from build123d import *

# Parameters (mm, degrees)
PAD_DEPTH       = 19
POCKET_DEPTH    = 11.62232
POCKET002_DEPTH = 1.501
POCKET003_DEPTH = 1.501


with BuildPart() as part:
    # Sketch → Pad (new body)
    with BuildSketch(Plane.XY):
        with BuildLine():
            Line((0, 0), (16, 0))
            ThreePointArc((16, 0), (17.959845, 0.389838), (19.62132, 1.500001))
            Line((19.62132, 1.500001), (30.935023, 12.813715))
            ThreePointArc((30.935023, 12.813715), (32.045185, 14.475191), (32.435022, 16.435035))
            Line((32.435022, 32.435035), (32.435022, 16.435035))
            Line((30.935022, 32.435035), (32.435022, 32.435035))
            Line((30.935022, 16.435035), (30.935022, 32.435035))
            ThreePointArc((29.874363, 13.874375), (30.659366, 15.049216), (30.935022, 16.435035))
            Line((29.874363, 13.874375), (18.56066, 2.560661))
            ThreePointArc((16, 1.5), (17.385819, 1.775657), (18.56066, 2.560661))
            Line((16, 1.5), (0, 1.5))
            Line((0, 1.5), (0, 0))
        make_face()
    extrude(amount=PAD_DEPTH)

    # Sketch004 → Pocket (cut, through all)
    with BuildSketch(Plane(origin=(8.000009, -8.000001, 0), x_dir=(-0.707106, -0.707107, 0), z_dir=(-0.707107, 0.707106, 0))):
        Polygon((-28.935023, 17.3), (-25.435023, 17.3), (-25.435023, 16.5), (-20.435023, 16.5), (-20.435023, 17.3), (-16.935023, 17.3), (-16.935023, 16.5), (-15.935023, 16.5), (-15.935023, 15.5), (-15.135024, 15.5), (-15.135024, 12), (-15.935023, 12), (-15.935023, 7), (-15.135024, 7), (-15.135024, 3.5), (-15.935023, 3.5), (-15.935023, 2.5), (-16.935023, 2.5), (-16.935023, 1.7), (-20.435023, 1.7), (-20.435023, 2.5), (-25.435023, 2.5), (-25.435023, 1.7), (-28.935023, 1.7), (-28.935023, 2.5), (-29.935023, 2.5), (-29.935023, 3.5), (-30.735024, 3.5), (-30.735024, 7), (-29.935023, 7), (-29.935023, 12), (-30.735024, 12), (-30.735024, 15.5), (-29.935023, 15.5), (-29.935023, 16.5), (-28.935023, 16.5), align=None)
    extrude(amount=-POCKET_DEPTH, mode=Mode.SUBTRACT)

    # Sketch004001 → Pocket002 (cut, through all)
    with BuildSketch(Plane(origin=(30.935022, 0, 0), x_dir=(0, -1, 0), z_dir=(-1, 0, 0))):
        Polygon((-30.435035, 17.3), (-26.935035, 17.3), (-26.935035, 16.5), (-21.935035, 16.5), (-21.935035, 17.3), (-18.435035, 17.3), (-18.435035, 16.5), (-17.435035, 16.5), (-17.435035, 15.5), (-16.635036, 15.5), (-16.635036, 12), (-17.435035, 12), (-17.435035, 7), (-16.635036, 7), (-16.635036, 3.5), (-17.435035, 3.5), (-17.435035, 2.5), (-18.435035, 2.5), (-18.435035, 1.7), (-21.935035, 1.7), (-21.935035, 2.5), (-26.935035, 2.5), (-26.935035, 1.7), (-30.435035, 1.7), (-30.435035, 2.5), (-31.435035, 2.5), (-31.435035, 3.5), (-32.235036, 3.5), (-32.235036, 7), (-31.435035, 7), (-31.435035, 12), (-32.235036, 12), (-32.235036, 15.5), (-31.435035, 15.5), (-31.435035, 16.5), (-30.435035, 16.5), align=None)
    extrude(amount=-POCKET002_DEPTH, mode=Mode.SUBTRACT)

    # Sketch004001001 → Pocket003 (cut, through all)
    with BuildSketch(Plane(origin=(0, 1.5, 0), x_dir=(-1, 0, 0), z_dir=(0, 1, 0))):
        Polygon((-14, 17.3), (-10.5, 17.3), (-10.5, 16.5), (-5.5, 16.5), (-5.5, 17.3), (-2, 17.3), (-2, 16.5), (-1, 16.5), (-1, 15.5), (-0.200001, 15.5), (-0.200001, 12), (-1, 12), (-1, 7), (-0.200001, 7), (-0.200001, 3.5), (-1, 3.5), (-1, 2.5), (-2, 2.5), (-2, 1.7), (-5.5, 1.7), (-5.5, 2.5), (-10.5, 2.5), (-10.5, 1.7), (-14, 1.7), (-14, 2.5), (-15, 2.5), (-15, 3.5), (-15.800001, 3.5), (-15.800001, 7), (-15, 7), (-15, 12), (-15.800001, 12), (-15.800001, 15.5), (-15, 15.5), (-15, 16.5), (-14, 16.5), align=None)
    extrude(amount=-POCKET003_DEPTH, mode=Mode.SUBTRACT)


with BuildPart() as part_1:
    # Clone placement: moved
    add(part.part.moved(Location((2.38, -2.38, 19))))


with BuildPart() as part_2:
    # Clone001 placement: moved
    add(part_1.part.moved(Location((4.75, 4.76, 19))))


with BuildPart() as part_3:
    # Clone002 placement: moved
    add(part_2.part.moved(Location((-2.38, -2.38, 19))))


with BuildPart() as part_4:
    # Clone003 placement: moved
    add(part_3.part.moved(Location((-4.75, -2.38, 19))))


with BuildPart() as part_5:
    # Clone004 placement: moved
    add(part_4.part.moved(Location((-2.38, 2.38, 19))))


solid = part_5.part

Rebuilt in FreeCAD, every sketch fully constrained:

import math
import FreeCAD as App
import Part
import Sketcher
from FreeCAD import Vector
Q = App.Units.Quantity

doc = App.newDocument("Part")
body = doc.addObject("PartDesign::Body", "Body")

# Sketch on XY plane
sketch1 = body.newObject("Sketcher::SketchObject", "Sketch")
sketch1.AttachmentSupport = (doc.getObject("XY_Plane"), [""])
sketch1.MapMode = "FlatFace"
sketch1.addGeometry(Part.LineSegment(Vector(0, 0, 0), Vector(16, 0, 0)), False)
sketch1.addGeometry(Part.ArcOfCircle(Part.Circle(Vector(16, 5.1, 0), Vector(0, 0, 1), 5.1), math.radians(-90), math.radians(-45)), False)
sketch1.addGeometry(Part.LineSegment(Vector(19.6, 1.5, 0), Vector(30.9, 12.8, 0)), False)
sketch1.addGeometry(Part.ArcOfCircle(Part.Circle(Vector(27.3, 16.4, 0), Vector(0, 0, 1), 5.1), math.radians(-45), math.radians(0)), False)
sketch1.addGeometry(Part.LineSegment(Vector(32.4, 16.4, 0), Vector(32.4, 32.4, 0)), False)
sketch1.addGeometry(Part.LineSegment(Vector(32.4, 32.4, 0), Vector(30.9, 32.4, 0)), False)
sketch1.addGeometry(Part.LineSegment(Vector(30.9, 32.4, 0), Vector(30.9, 16.4, 0)), False)
sketch1.addGeometry(Part.ArcOfCircle(Part.Circle(Vector(27.3, 16.4, 0), Vector(0, 0, 1), 3.6), math.radians(-45), math.radians(0)), False)
sketch1.addGeometry(Part.LineSegment(Vector(29.9, 13.9, 0), Vector(18.6, 2.6, 0)), False)
sketch1.addGeometry(Part.ArcOfCircle(Part.Circle(Vector(16, 5.1, 0), Vector(0, 0, 1), 3.6), math.radians(-90), math.radians(-45)), False)
sketch1.addGeometry(Part.LineSegment(Vector(16, 1.5, 0), Vector(0, 1.5, 0)), False)
sketch1.addGeometry(Part.LineSegment(Vector(0, 1.5, 0), Vector(0, 0, 0)), False)
sketch1.addConstraint(Sketcher.Constraint("Tangent", 0, 2, 1, 1))
sketch1.addConstraint(Sketcher.Constraint("Tangent", 1, 2, 2, 1))
sketch1.addConstraint(Sketcher.Constraint("Tangent", 2, 2, 3, 1))
sketch1.addConstraint(Sketcher.Constraint("Tangent", 3, 2, 4, 1))
sketch1.addConstraint(Sketcher.Constraint("Coincident", 4, 2, 5, 1))
sketch1.addConstraint(Sketcher.Constraint("Coincident", 5, 2, 6, 1))
sketch1.addConstraint(Sketcher.Constraint("Tangent", 6, 2, 7, 2))
sketch1.addConstraint(Sketcher.Constraint("Tangent", 7, 1, 8, 1))
sketch1.addConstraint(Sketcher.Constraint("Tangent", 8, 2, 9, 2))
sketch1.addConstraint(Sketcher.Constraint("Tangent", 9, 1, 10, 1))
sketch1.addConstraint(Sketcher.Constraint("Coincident", 10, 2, 11, 1))
sketch1.addConstraint(Sketcher.Constraint("Coincident", 11, 2, 0, 1))
sketch1.addConstraint(Sketcher.Constraint("Horizontal", 0))
sketch1.addConstraint(Sketcher.Constraint("Vertical", 4))
sketch1.addConstraint(Sketcher.Constraint("Horizontal", 5))
sketch1.addConstraint(Sketcher.Constraint("Vertical", 6))
sketch1.addConstraint(Sketcher.Constraint("Horizontal", 10))
sketch1.addConstraint(Sketcher.Constraint("Vertical", 11))
sketch1.addConstraint(Sketcher.Constraint("Coincident", 11, 2, -1, 1))
sketch1.addConstraint(Sketcher.Constraint("Coincident", 7, 3, 3, 3))
sketch1.addConstraint(Sketcher.Constraint("Coincident", 9, 3, 1, 3))
sketch1.addConstraint(Sketcher.Constraint("Equal", 7, 9))
sketch1.addConstraint(Sketcher.Constraint("Parallel", 2, 8))
sketch1.addConstraint(Sketcher.Constraint("Horizontal", 1, 2, 9, 1))
sketch1.addConstraint(Sketcher.Constraint("Vertical", 2, 2, 5, 2))
sketch1.addConstraint(Sketcher.Constraint("Equal", 10, 4))
sketch1.addConstraint(Sketcher.Constraint("DistanceX", 0, 1, 0, 2, Q("16 mm")))
sketch1.addConstraint(Sketcher.Constraint("Distance", 2, Q("16 mm")))
sketch1.addConstraint(Sketcher.Constraint("DistanceX", 5, 2, 5, 1, Q("1.5 mm")))
pad1 = body.newObject("PartDesign::Pad", "Pad")
pad1.Profile = sketch1
pad1.Length = 19

# Sketch on an angled plane
sketch2 = body.newObject("Sketcher::SketchObject", "Sketch001")
sketch2.Placement = App.Placement(Vector(8.000009, -8.000001, 0), App.Rotation(Vector(-0.707106281, -0.707107281, 0), Vector(0, 0, 0.999999999), Vector(-0.707107281, 0.707106281, 0), "ZXY"))
sketch2.addGeometry(Part.LineSegment(Vector(-25.4, 17.3, 0), Vector(-28.9, 17.3, 0)), False)
sketch2.addGeometry(Part.LineSegment(Vector(-28.9, 17.3, 0), Vector(-28.9, 16.5, 0)), False)
sketch2.addGeometry(Part.LineSegment(Vector(-28.9, 16.5, 0), Vector(-29.9, 16.5, 0)), False)
sketch2.addGeometry(Part.LineSegment(Vector(-29.9, 16.5, 0), Vector(-29.9, 15.5, 0)), False)
sketch2.addGeometry(Part.LineSegment(Vector(-29.9, 15.5, 0), Vector(-30.7, 15.5, 0)), False)
sketch2.addGeometry(Part.LineSegment(Vector(-30.7, 15.5, 0), Vector(-30.7, 12, 0)), False)
sketch2.addGeometry(Part.LineSegment(Vector(-30.7, 12, 0), Vector(-29.9, 12, 0)), False)
sketch2.addGeometry(Part.LineSegment(Vector(-29.9, 12, 0), Vector(-29.9, 7, 0)), False)
sketch2.addGeometry(Part.LineSegment(Vector(-29.9, 7, 0), Vector(-30.7, 7, 0)), False)
sketch2.addGeometry(Part.LineSegment(Vector(-30.7, 7, 0), Vector(-30.7, 3.5, 0)), False)
sketch2.addGeometry(Part.LineSegment(Vector(-30.7, 3.5, 0), Vector(-29.9, 3.5, 0)), False)
sketch2.addGeometry(Part.LineSegment(Vector(-29.9, 3.5, 0), Vector(-29.9, 2.5, 0)), False)
sketch2.addGeometry(Part.LineSegment(Vector(-29.9, 2.5, 0), Vector(-28.9, 2.5, 0)), False)
sketch2.addGeometry(Part.LineSegment(Vector(-28.9, 2.5, 0), Vector(-28.9, 1.7, 0)), False)
sketch2.addGeometry(Part.LineSegment(Vector(-28.9, 1.7, 0), Vector(-25.4, 1.7, 0)), False)
sketch2.addGeometry(Part.LineSegment(Vector(-25.4, 1.7, 0), Vector(-25.4, 2.5, 0)), False)
sketch2.addGeometry(Part.LineSegment(Vector(-25.4, 2.5, 0), Vector(-20.4, 2.5, 0)), False)
sketch2.addGeometry(Part.LineSegment(Vector(-20.4, 2.5, 0), Vector(-20.4, 1.7, 0)), False)
sketch2.addGeometry(Part.LineSegment(Vector(-20.4, 1.7, 0), Vector(-16.9, 1.7, 0)), False)
sketch2.addGeometry(Part.LineSegment(Vector(-16.9, 1.7, 0), Vector(-16.9, 2.5, 0)), False)
sketch2.addGeometry(Part.LineSegment(Vector(-16.9, 2.5, 0), Vector(-15.9, 2.5, 0)), False)
sketch2.addGeometry(Part.LineSegment(Vector(-15.9, 2.5, 0), Vector(-15.9, 3.5, 0)), False)
sketch2.addGeometry(Part.LineSegment(Vector(-15.9, 3.5, 0), Vector(-15.1, 3.5, 0)), False)
sketch2.addGeometry(Part.LineSegment(Vector(-15.1, 3.5, 0), Vector(-15.1, 7, 0)), False)
sketch2.addGeometry(Part.LineSegment(Vector(-15.1, 7, 0), Vector(-15.9, 7, 0)), False)
sketch2.addGeometry(Part.LineSegment(Vector(-15.9, 7, 0), Vector(-15.9, 12, 0)), False)
sketch2.addGeometry(Part.LineSegment(Vector(-15.9, 12, 0), Vector(-15.1, 12, 0)), False)
sketch2.addGeometry(Part.LineSegment(Vector(-15.1, 12, 0), Vector(-15.1, 15.5, 0)), False)
sketch2.addGeometry(Part.LineSegment(Vector(-15.1, 15.5, 0), Vector(-15.9, 15.5, 0)), False)
sketch2.addGeometry(Part.LineSegment(Vector(-15.9, 15.5, 0), Vector(-15.9, 16.5, 0)), False)
sketch2.addGeometry(Part.LineSegment(Vector(-15.9, 16.5, 0), Vector(-16.9, 16.5, 0)), False)
sketch2.addGeometry(Part.LineSegment(Vector(-16.9, 16.5, 0), Vector(-16.9, 17.3, 0)), False)
sketch2.addGeometry(Part.LineSegment(Vector(-16.9, 17.3, 0), Vector(-20.4, 17.3, 0)), False)
sketch2.addGeometry(Part.LineSegment(Vector(-20.4, 17.3, 0), Vector(-20.4, 16.5, 0)), False)
sketch2.addGeometry(Part.LineSegment(Vector(-20.4, 16.5, 0), Vector(-25.4, 16.5, 0)), False)
sketch2.addGeometry(Part.LineSegment(Vector(-25.4, 16.5, 0), Vector(-25.4, 17.3, 0)), False)
sketch2.addConstraint(Sketcher.Constraint("Coincident", 0, 2, 1, 1))
sketch2.addConstraint(Sketcher.Constraint("Coincident", 1, 2, 2, 1))
sketch2.addConstraint(Sketcher.Constraint("Coincident", 2, 2, 3, 1))
sketch2.addConstraint(Sketcher.Constraint("Coincident", 3, 2, 4, 1))
sketch2.addConstraint(Sketcher.Constraint("Coincident", 4, 2, 5, 1))
sketch2.addConstraint(Sketcher.Constraint("Coincident", 5, 2, 6, 1))
sketch2.addConstraint(Sketcher.Constraint("Coincident", 6, 2, 7, 1))
sketch2.addConstraint(Sketcher.Constraint("Coincident", 7, 2, 8, 1))
sketch2.addConstraint(Sketcher.Constraint("Coincident", 8, 2, 9, 1))
sketch2.addConstraint(Sketcher.Constraint("Coincident", 9, 2, 10, 1))
sketch2.addConstraint(Sketcher.Constraint("Coincident", 10, 2, 11, 1))
sketch2.addConstraint(Sketcher.Constraint("Coincident", 11, 2, 12, 1))
sketch2.addConstraint(Sketcher.Constraint("Coincident", 12, 2, 13, 1))
sketch2.addConstraint(Sketcher.Constraint("Coincident", 13, 2, 14, 1))
sketch2.addConstraint(Sketcher.Constraint("Coincident", 14, 2, 15, 1))
sketch2.addConstraint(Sketcher.Constraint("Coincident", 15, 2, 16, 1))
sketch2.addConstraint(Sketcher.Constraint("Coincident", 16, 2, 17, 1))
sketch2.addConstraint(Sketcher.Constraint("Coincident", 17, 2, 18, 1))
sketch2.addConstraint(Sketcher.Constraint("Coincident", 18, 2, 19, 1))
sketch2.addConstraint(Sketcher.Constraint("Coincident", 19, 2, 20, 1))
sketch2.addConstraint(Sketcher.Constraint("Coincident", 20, 2, 21, 1))
sketch2.addConstraint(Sketcher.Constraint("Coincident", 21, 2, 22, 1))
sketch2.addConstraint(Sketcher.Constraint("Coincident", 22, 2, 23, 1))
sketch2.addConstraint(Sketcher.Constraint("Coincident", 23, 2, 24, 1))
sketch2.addConstraint(Sketcher.Constraint("Coincident", 24, 2, 25, 1))
sketch2.addConstraint(Sketcher.Constraint("Coincident", 25, 2, 26, 1))
sketch2.addConstraint(Sketcher.Constraint("Coincident", 26, 2, 27, 1))
sketch2.addConstraint(Sketcher.Constraint("Coincident", 27, 2, 28, 1))
sketch2.addConstraint(Sketcher.Constraint("Coincident", 28, 2, 29, 1))
sketch2.addConstraint(Sketcher.Constraint("Coincident", 29, 2, 30, 1))
sketch2.addConstraint(Sketcher.Constraint("Coincident", 30, 2, 31, 1))
sketch2.addConstraint(Sketcher.Constraint("Coincident", 31, 2, 32, 1))
sketch2.addConstraint(Sketcher.Constraint("Coincident", 32, 2, 33, 1))
sketch2.addConstraint(Sketcher.Constraint("Coincident", 33, 2, 34, 1))
sketch2.addConstraint(Sketcher.Constraint("Coincident", 34, 2, 35, 1))
sketch2.addConstraint(Sketcher.Constraint("Coincident", 35, 2, 0, 1))
sketch2.addConstraint(Sketcher.Constraint("Horizontal", 0))
sketch2.addConstraint(Sketcher.Constraint("Vertical", 1))
sketch2.addConstraint(Sketcher.Constraint("Horizontal", 2))
sketch2.addConstraint(Sketcher.Constraint("Vertical", 3))
sketch2.addConstraint(Sketcher.Constraint("Horizontal", 4))
sketch2.addConstraint(Sketcher.Constraint("Vertical", 5))
sketch2.addConstraint(Sketcher.Constraint("Horizontal", 6))
sketch2.addConstraint(Sketcher.Constraint("Vertical", 7))
sketch2.addConstraint(Sketcher.Constraint("Horizontal", 8))
sketch2.addConstraint(Sketcher.Constraint("Vertical", 9))
sketch2.addConstraint(Sketcher.Constraint("Horizontal", 10))
sketch2.addConstraint(Sketcher.Constraint("Vertical", 11))
sketch2.addConstraint(Sketcher.Constraint("Horizontal", 12))
sketch2.addConstraint(Sketcher.Constraint("Vertical", 13))
sketch2.addConstraint(Sketcher.Constraint("Horizontal", 14))
sketch2.addConstraint(Sketcher.Constraint("Vertical", 15))
sketch2.addConstraint(Sketcher.Constraint("Horizontal", 16))
sketch2.addConstraint(Sketcher.Constraint("Vertical", 17))
sketch2.addConstraint(Sketcher.Constraint("Horizontal", 18))
sketch2.addConstraint(Sketcher.Constraint("Vertical", 19))
sketch2.addConstraint(Sketcher.Constraint("Horizontal", 20))
sketch2.addConstraint(Sketcher.Constraint("Vertical", 21))
sketch2.addConstraint(Sketcher.Constraint("Horizontal", 22))
sketch2.addConstraint(Sketcher.Constraint("Vertical", 23))
sketch2.addConstraint(Sketcher.Constraint("Horizontal", 24))
sketch2.addConstraint(Sketcher.Constraint("Vertical", 25))
sketch2.addConstraint(Sketcher.Constraint("Horizontal", 26))
sketch2.addConstraint(Sketcher.Constraint("Vertical", 27))
sketch2.addConstraint(Sketcher.Constraint("Horizontal", 28))
sketch2.addConstraint(Sketcher.Constraint("Vertical", 29))
sketch2.addConstraint(Sketcher.Constraint("Horizontal", 30))
sketch2.addConstraint(Sketcher.Constraint("Vertical", 31))
sketch2.addConstraint(Sketcher.Constraint("Horizontal", 32))
sketch2.addConstraint(Sketcher.Constraint("Vertical", 33))
sketch2.addConstraint(Sketcher.Constraint("Horizontal", 34))
sketch2.addConstraint(Sketcher.Constraint("Vertical", 35))
sketch2.addConstraint(Sketcher.Constraint("Horizontal", 12, 2, 15, 2))
sketch2.addConstraint(Sketcher.Constraint("Horizontal", 14, 2, 17, 2))
sketch2.addConstraint(Sketcher.Constraint("Horizontal", 16, 2, 19, 2))
sketch2.addConstraint(Sketcher.Constraint("Horizontal", 10, 2, 21, 2))
sketch2.addConstraint(Sketcher.Constraint("Horizontal", 8, 2, 23, 2))
sketch2.addConstraint(Sketcher.Constraint("Horizontal", 6, 2, 25, 2))
sketch2.addConstraint(Sketcher.Constraint("Horizontal", 4, 2, 27, 2))
sketch2.addConstraint(Sketcher.Constraint("Horizontal", 2, 2, 29, 2))
sketch2.addConstraint(Sketcher.Constraint("Horizontal", 0, 2, 31, 2))
sketch2.addConstraint(Sketcher.Constraint("Horizontal", 30, 2, 33, 2))
sketch2.addConstraint(Sketcher.Constraint("Vertical", 3, 2, 6, 2))
sketch2.addConstraint(Sketcher.Constraint("Vertical", 5, 2, 8, 2))
sketch2.addConstraint(Sketcher.Constraint("Vertical", 7, 2, 10, 2))
sketch2.addConstraint(Sketcher.Constraint("Vertical", 1, 2, 12, 2))
sketch2.addConstraint(Sketcher.Constraint("Vertical", 21, 2, 24, 2))
sketch2.addConstraint(Sketcher.Constraint("Vertical", 23, 2, 26, 2))
sketch2.addConstraint(Sketcher.Constraint("Vertical", 25, 2, 28, 2))
sketch2.addConstraint(Sketcher.Constraint("Vertical", 19, 2, 30, 2))
sketch2.addConstraint(Sketcher.Constraint("Vertical", 17, 2, 32, 2))
sketch2.addConstraint(Sketcher.Constraint("Vertical", 15, 2, 34, 2))
sketch2.addConstraint(Sketcher.Constraint("Equal", 14, 18))
sketch2.addConstraint(Sketcher.Constraint("Equal", 12, 20))
sketch2.addConstraint(Sketcher.Constraint("Equal", 28, 1))
sketch2.addConstraint(Sketcher.Constraint("Equal", 30, 3))
sketch2.addConstraint(Sketcher.Constraint("Equal", 32, 5))
sketch2.addConstraint(Sketcher.Constraint("Equal", 34, 7))
sketch2.addConstraint(Sketcher.Constraint("Equal", 5, 9))
sketch2.addConstraint(Sketcher.Constraint("Equal", 3, 11))
sketch2.addConstraint(Sketcher.Constraint("Equal", 1, 13))
sketch2.addConstraint(Sketcher.Constraint("Equal", 10, 15))
sketch2.addConstraint(Sketcher.Constraint("DistanceX", 2, 2, 2, 1, Q("1 mm")))
sketch2.addConstraint(Sketcher.Constraint("DistanceX", 16, 1, 16, 2, Q("5 mm")))
sketch2.addConstraint(Sketcher.Constraint("DistanceX", 0, 2, 0, 1, Q("3.5 mm")))
sketch2.addConstraint(Sketcher.Constraint("DistanceX", 4, 2, 4, 1, Q("0.800001 mm")))
sketch2.addConstraint(Sketcher.Constraint("DistanceY", -1, 1, 5, 2, Q("12 mm")))
sketch2.addConstraint(Sketcher.Constraint("DistanceX", 0, 2, -1, 1, Q("28.935023 mm")))
pocket1 = body.newObject("PartDesign::Pocket", "Pocket")
pocket1.Profile = sketch2
pocket1.Type = "ThroughAll"

# Sketch on YZ plane
sketch3 = body.newObject("Sketcher::SketchObject", "Sketch002")
sketch3.AttachmentSupport = (doc.getObject("YZ_Plane"), [""])
sketch3.MapMode = "FlatFace"
sketch3.AttachmentOffset = App.Placement(Vector(0, 0, 30.935022), App.Rotation())
sketch3.addGeometry(Part.LineSegment(Vector(26.9, 17.3, 0), Vector(30.4, 17.3, 0)), False)
sketch3.addGeometry(Part.LineSegment(Vector(30.4, 17.3, 0), Vector(30.4, 16.5, 0)), False)
sketch3.addGeometry(Part.LineSegment(Vector(30.4, 16.5, 0), Vector(31.4, 16.5, 0)), False)
sketch3.addGeometry(Part.LineSegment(Vector(31.4, 16.5, 0), Vector(31.4, 15.5, 0)), False)
sketch3.addGeometry(Part.LineSegment(Vector(31.4, 15.5, 0), Vector(32.2, 15.5, 0)), False)
sketch3.addGeometry(Part.LineSegment(Vector(32.2, 15.5, 0), Vector(32.2, 12, 0)), False)
sketch3.addGeometry(Part.LineSegment(Vector(32.2, 12, 0), Vector(31.4, 12, 0)), False)
sketch3.addGeometry(Part.LineSegment(Vector(31.4, 12, 0), Vector(31.4, 7, 0)), False)
sketch3.addGeometry(Part.LineSegment(Vector(31.4, 7, 0), Vector(32.2, 7, 0)), False)
sketch3.addGeometry(Part.LineSegment(Vector(32.2, 7, 0), Vector(32.2, 3.5, 0)), False)
sketch3.addGeometry(Part.LineSegment(Vector(32.2, 3.5, 0), Vector(31.4, 3.5, 0)), False)
sketch3.addGeometry(Part.LineSegment(Vector(31.4, 3.5, 0), Vector(31.4, 2.5, 0)), False)
sketch3.addGeometry(Part.LineSegment(Vector(31.4, 2.5, 0), Vector(30.4, 2.5, 0)), False)
sketch3.addGeometry(Part.LineSegment(Vector(30.4, 2.5, 0), Vector(30.4, 1.7, 0)), False)
sketch3.addGeometry(Part.LineSegment(Vector(30.4, 1.7, 0), Vector(26.9, 1.7, 0)), False)
sketch3.addGeometry(Part.LineSegment(Vector(26.9, 1.7, 0), Vector(26.9, 2.5, 0)), False)
sketch3.addGeometry(Part.LineSegment(Vector(26.9, 2.5, 0), Vector(21.9, 2.5, 0)), False)
sketch3.addGeometry(Part.LineSegment(Vector(21.9, 2.5, 0), Vector(21.9, 1.7, 0)), False)
sketch3.addGeometry(Part.LineSegment(Vector(21.9, 1.7, 0), Vector(18.4, 1.7, 0)), False)
sketch3.addGeometry(Part.LineSegment(Vector(18.4, 1.7, 0), Vector(18.4, 2.5, 0)), False)
sketch3.addGeometry(Part.LineSegment(Vector(18.4, 2.5, 0), Vector(17.4, 2.5, 0)), False)
sketch3.addGeometry(Part.LineSegment(Vector(17.4, 2.5, 0), Vector(17.4, 3.5, 0)), False)
sketch3.addGeometry(Part.LineSegment(Vector(17.4, 3.5, 0), Vector(16.6, 3.5, 0)), False)
sketch3.addGeometry(Part.LineSegment(Vector(16.6, 3.5, 0), Vector(16.6, 7, 0)), False)
sketch3.addGeometry(Part.LineSegment(Vector(16.6, 7, 0), Vector(17.4, 7, 0)), False)
sketch3.addGeometry(Part.LineSegment(Vector(17.4, 7, 0), Vector(17.4, 12, 0)), False)
sketch3.addGeometry(Part.LineSegment(Vector(17.4, 12, 0), Vector(16.6, 12, 0)), False)
sketch3.addGeometry(Part.LineSegment(Vector(16.6, 12, 0), Vector(16.6, 15.5, 0)), False)
sketch3.addGeometry(Part.LineSegment(Vector(16.6, 15.5, 0), Vector(17.4, 15.5, 0)), False)
sketch3.addGeometry(Part.LineSegment(Vector(17.4, 15.5, 0), Vector(17.4, 16.5, 0)), False)
sketch3.addGeometry(Part.LineSegment(Vector(17.4, 16.5, 0), Vector(18.4, 16.5, 0)), False)
sketch3.addGeometry(Part.LineSegment(Vector(18.4, 16.5, 0), Vector(18.4, 17.3, 0)), False)
sketch3.addGeometry(Part.LineSegment(Vector(18.4, 17.3, 0), Vector(21.9, 17.3, 0)), False)
sketch3.addGeometry(Part.LineSegment(Vector(21.9, 17.3, 0), Vector(21.9, 16.5, 0)), False)
sketch3.addGeometry(Part.LineSegment(Vector(21.9, 16.5, 0), Vector(26.9, 16.5, 0)), False)
sketch3.addGeometry(Part.LineSegment(Vector(26.9, 16.5, 0), Vector(26.9, 17.3, 0)), False)
sketch3.addConstraint(Sketcher.Constraint("Coincident", 0, 2, 1, 1))
sketch3.addConstraint(Sketcher.Constraint("Coincident", 1, 2, 2, 1))
sketch3.addConstraint(Sketcher.Constraint("Coincident", 2, 2, 3, 1))
sketch3.addConstraint(Sketcher.Constraint("Coincident", 3, 2, 4, 1))
sketch3.addConstraint(Sketcher.Constraint("Coincident", 4, 2, 5, 1))
sketch3.addConstraint(Sketcher.Constraint("Coincident", 5, 2, 6, 1))
sketch3.addConstraint(Sketcher.Constraint("Coincident", 6, 2, 7, 1))
sketch3.addConstraint(Sketcher.Constraint("Coincident", 7, 2, 8, 1))
sketch3.addConstraint(Sketcher.Constraint("Coincident", 8, 2, 9, 1))
sketch3.addConstraint(Sketcher.Constraint("Coincident", 9, 2, 10, 1))
sketch3.addConstraint(Sketcher.Constraint("Coincident", 10, 2, 11, 1))
sketch3.addConstraint(Sketcher.Constraint("Coincident", 11, 2, 12, 1))
sketch3.addConstraint(Sketcher.Constraint("Coincident", 12, 2, 13, 1))
sketch3.addConstraint(Sketcher.Constraint("Coincident", 13, 2, 14, 1))
sketch3.addConstraint(Sketcher.Constraint("Coincident", 14, 2, 15, 1))
sketch3.addConstraint(Sketcher.Constraint("Coincident", 15, 2, 16, 1))
sketch3.addConstraint(Sketcher.Constraint("Coincident", 16, 2, 17, 1))
sketch3.addConstraint(Sketcher.Constraint("Coincident", 17, 2, 18, 1))
sketch3.addConstraint(Sketcher.Constraint("Coincident", 18, 2, 19, 1))
sketch3.addConstraint(Sketcher.Constraint("Coincident", 19, 2, 20, 1))
sketch3.addConstraint(Sketcher.Constraint("Coincident", 20, 2, 21, 1))
sketch3.addConstraint(Sketcher.Constraint("Coincident", 21, 2, 22, 1))
sketch3.addConstraint(Sketcher.Constraint("Coincident", 22, 2, 23, 1))
sketch3.addConstraint(Sketcher.Constraint("Coincident", 23, 2, 24, 1))
sketch3.addConstraint(Sketcher.Constraint("Coincident", 24, 2, 25, 1))
sketch3.addConstraint(Sketcher.Constraint("Coincident", 25, 2, 26, 1))
sketch3.addConstraint(Sketcher.Constraint("Coincident", 26, 2, 27, 1))
sketch3.addConstraint(Sketcher.Constraint("Coincident", 27, 2, 28, 1))
sketch3.addConstraint(Sketcher.Constraint("Coincident", 28, 2, 29, 1))
sketch3.addConstraint(Sketcher.Constraint("Coincident", 29, 2, 30, 1))
sketch3.addConstraint(Sketcher.Constraint("Coincident", 30, 2, 31, 1))
sketch3.addConstraint(Sketcher.Constraint("Coincident", 31, 2, 32, 1))
sketch3.addConstraint(Sketcher.Constraint("Coincident", 32, 2, 33, 1))
sketch3.addConstraint(Sketcher.Constraint("Coincident", 33, 2, 34, 1))
sketch3.addConstraint(Sketcher.Constraint("Coincident", 34, 2, 35, 1))
sketch3.addConstraint(Sketcher.Constraint("Coincident", 35, 2, 0, 1))
sketch3.addConstraint(Sketcher.Constraint("Horizontal", 0))
sketch3.addConstraint(Sketcher.Constraint("Vertical", 1))
sketch3.addConstraint(Sketcher.Constraint("Horizontal", 2))
sketch3.addConstraint(Sketcher.Constraint("Vertical", 3))
sketch3.addConstraint(Sketcher.Constraint("Horizontal", 4))
sketch3.addConstraint(Sketcher.Constraint("Vertical", 5))
sketch3.addConstraint(Sketcher.Constraint("Horizontal", 6))
sketch3.addConstraint(Sketcher.Constraint("Vertical", 7))
sketch3.addConstraint(Sketcher.Constraint("Horizontal", 8))
sketch3.addConstraint(Sketcher.Constraint("Vertical", 9))
sketch3.addConstraint(Sketcher.Constraint("Horizontal", 10))
sketch3.addConstraint(Sketcher.Constraint("Vertical", 11))
sketch3.addConstraint(Sketcher.Constraint("Horizontal", 12))
sketch3.addConstraint(Sketcher.Constraint("Vertical", 13))
sketch3.addConstraint(Sketcher.Constraint("Horizontal", 14))
sketch3.addConstraint(Sketcher.Constraint("Vertical", 15))
sketch3.addConstraint(Sketcher.Constraint("Horizontal", 16))
sketch3.addConstraint(Sketcher.Constraint("Vertical", 17))
sketch3.addConstraint(Sketcher.Constraint("Horizontal", 18))
sketch3.addConstraint(Sketcher.Constraint("Vertical", 19))
sketch3.addConstraint(Sketcher.Constraint("Horizontal", 20))
sketch3.addConstraint(Sketcher.Constraint("Vertical", 21))
sketch3.addConstraint(Sketcher.Constraint("Horizontal", 22))
sketch3.addConstraint(Sketcher.Constraint("Vertical", 23))
sketch3.addConstraint(Sketcher.Constraint("Horizontal", 24))
sketch3.addConstraint(Sketcher.Constraint("Vertical", 25))
sketch3.addConstraint(Sketcher.Constraint("Horizontal", 26))
sketch3.addConstraint(Sketcher.Constraint("Vertical", 27))
sketch3.addConstraint(Sketcher.Constraint("Horizontal", 28))
sketch3.addConstraint(Sketcher.Constraint("Vertical", 29))
sketch3.addConstraint(Sketcher.Constraint("Horizontal", 30))
sketch3.addConstraint(Sketcher.Constraint("Vertical", 31))
sketch3.addConstraint(Sketcher.Constraint("Horizontal", 32))
sketch3.addConstraint(Sketcher.Constraint("Vertical", 33))
sketch3.addConstraint(Sketcher.Constraint("Horizontal", 34))
sketch3.addConstraint(Sketcher.Constraint("Vertical", 35))
sketch3.addConstraint(Sketcher.Constraint("Horizontal", 12, 2, 15, 2))
sketch3.addConstraint(Sketcher.Constraint("Horizontal", 14, 2, 17, 2))
sketch3.addConstraint(Sketcher.Constraint("Horizontal", 16, 2, 19, 2))
sketch3.addConstraint(Sketcher.Constraint("Horizontal", 10, 2, 21, 2))
sketch3.addConstraint(Sketcher.Constraint("Horizontal", 8, 2, 23, 2))
sketch3.addConstraint(Sketcher.Constraint("Horizontal", 6, 2, 25, 2))
sketch3.addConstraint(Sketcher.Constraint("Horizontal", 4, 2, 27, 2))
sketch3.addConstraint(Sketcher.Constraint("Horizontal", 2, 2, 29, 2))
sketch3.addConstraint(Sketcher.Constraint("Horizontal", 0, 2, 31, 2))
sketch3.addConstraint(Sketcher.Constraint("Horizontal", 30, 2, 33, 2))
sketch3.addConstraint(Sketcher.Constraint("Vertical", 3, 2, 6, 2))
sketch3.addConstraint(Sketcher.Constraint("Vertical", 5, 2, 8, 2))
sketch3.addConstraint(Sketcher.Constraint("Vertical", 7, 2, 10, 2))
sketch3.addConstraint(Sketcher.Constraint("Vertical", 1, 2, 12, 2))
sketch3.addConstraint(Sketcher.Constraint("Vertical", 21, 2, 24, 2))
sketch3.addConstraint(Sketcher.Constraint("Vertical", 23, 2, 26, 2))
sketch3.addConstraint(Sketcher.Constraint("Vertical", 25, 2, 28, 2))
sketch3.addConstraint(Sketcher.Constraint("Vertical", 19, 2, 30, 2))
sketch3.addConstraint(Sketcher.Constraint("Vertical", 17, 2, 32, 2))
sketch3.addConstraint(Sketcher.Constraint("Vertical", 15, 2, 34, 2))
sketch3.addConstraint(Sketcher.Constraint("Equal", 14, 18))
sketch3.addConstraint(Sketcher.Constraint("Equal", 12, 20))
sketch3.addConstraint(Sketcher.Constraint("Equal", 28, 1))
sketch3.addConstraint(Sketcher.Constraint("Equal", 30, 3))
sketch3.addConstraint(Sketcher.Constraint("Equal", 32, 5))
sketch3.addConstraint(Sketcher.Constraint("Equal", 34, 7))
sketch3.addConstraint(Sketcher.Constraint("Equal", 5, 9))
sketch3.addConstraint(Sketcher.Constraint("Equal", 3, 11))
sketch3.addConstraint(Sketcher.Constraint("Equal", 1, 13))
sketch3.addConstraint(Sketcher.Constraint("Equal", 10, 15))
sketch3.addConstraint(Sketcher.Constraint("DistanceX", 2, 1, 2, 2, Q("1 mm")))
sketch3.addConstraint(Sketcher.Constraint("DistanceX", 16, 2, 16, 1, Q("5 mm")))
sketch3.addConstraint(Sketcher.Constraint("DistanceX", 0, 1, 0, 2, Q("3.5 mm")))
sketch3.addConstraint(Sketcher.Constraint("DistanceX", 4, 1, 4, 2, Q("0.800001 mm")))
sketch3.addConstraint(Sketcher.Constraint("DistanceY", -1, 1, 5, 2, Q("12 mm")))
sketch3.addConstraint(Sketcher.Constraint("DistanceX", -1, 1, 0, 2, Q("30.435035 mm")))
pocket2 = body.newObject("PartDesign::Pocket", "Pocket001")
pocket2.Profile = sketch3
pocket2.Type = "ThroughAll"
pocket2.Reversed = True

# Sketch on XZ plane
sketch4 = body.newObject("Sketcher::SketchObject", "Sketch003")
sketch4.AttachmentSupport = (doc.getObject("XZ_Plane"), [""])
sketch4.MapMode = "FlatFace"
sketch4.AttachmentOffset = App.Placement(Vector(0, 0, -1.5), App.Rotation())
sketch4.addGeometry(Part.LineSegment(Vector(10.5, 17.3, 0), Vector(14, 17.3, 0)), False)
sketch4.addGeometry(Part.LineSegment(Vector(14, 17.3, 0), Vector(14, 16.5, 0)), False)
sketch4.addGeometry(Part.LineSegment(Vector(14, 16.5, 0), Vector(15, 16.5, 0)), False)
sketch4.addGeometry(Part.LineSegment(Vector(15, 16.5, 0), Vector(15, 15.5, 0)), False)
sketch4.addGeometry(Part.LineSegment(Vector(15, 15.5, 0), Vector(15.8, 15.5, 0)), False)
sketch4.addGeometry(Part.LineSegment(Vector(15.8, 15.5, 0), Vector(15.8, 12, 0)), False)
sketch4.addGeometry(Part.LineSegment(Vector(15.8, 12, 0), Vector(15, 12, 0)), False)
sketch4.addGeometry(Part.LineSegment(Vector(15, 12, 0), Vector(15, 7, 0)), False)
sketch4.addGeometry(Part.LineSegment(Vector(15, 7, 0), Vector(15.8, 7, 0)), False)
sketch4.addGeometry(Part.LineSegment(Vector(15.8, 7, 0), Vector(15.8, 3.5, 0)), False)
sketch4.addGeometry(Part.LineSegment(Vector(15.8, 3.5, 0), Vector(15, 3.5, 0)), False)
sketch4.addGeometry(Part.LineSegment(Vector(15, 3.5, 0), Vector(15, 2.5, 0)), False)
sketch4.addGeometry(Part.LineSegment(Vector(15, 2.5, 0), Vector(14, 2.5, 0)), False)
sketch4.addGeometry(Part.LineSegment(Vector(14, 2.5, 0), Vector(14, 1.7, 0)), False)
sketch4.addGeometry(Part.LineSegment(Vector(14, 1.7, 0), Vector(10.5, 1.7, 0)), False)
sketch4.addGeometry(Part.LineSegment(Vector(10.5, 1.7, 0), Vector(10.5, 2.5, 0)), False)
sketch4.addGeometry(Part.LineSegment(Vector(10.5, 2.5, 0), Vector(5.5, 2.5, 0)), False)
sketch4.addGeometry(Part.LineSegment(Vector(5.5, 2.5, 0), Vector(5.5, 1.7, 0)), False)
sketch4.addGeometry(Part.LineSegment(Vector(5.5, 1.7, 0), Vector(2, 1.7, 0)), False)
sketch4.addGeometry(Part.LineSegment(Vector(2, 1.7, 0), Vector(2, 2.5, 0)), False)
sketch4.addGeometry(Part.LineSegment(Vector(2, 2.5, 0), Vector(1, 2.5, 0)), False)
sketch4.addGeometry(Part.LineSegment(Vector(1, 2.5, 0), Vector(1, 3.5, 0)), False)
sketch4.addGeometry(Part.LineSegment(Vector(1, 3.5, 0), Vector(0.2, 3.5, 0)), False)
sketch4.addGeometry(Part.LineSegment(Vector(0.2, 3.5, 0), Vector(0.2, 7, 0)), False)
sketch4.addGeometry(Part.LineSegment(Vector(0.2, 7, 0), Vector(1, 7, 0)), False)
sketch4.addGeometry(Part.LineSegment(Vector(1, 7, 0), Vector(1, 12, 0)), False)
sketch4.addGeometry(Part.LineSegment(Vector(1, 12, 0), Vector(0.2, 12, 0)), False)
sketch4.addGeometry(Part.LineSegment(Vector(0.2, 12, 0), Vector(0.2, 15.5, 0)), False)
sketch4.addGeometry(Part.LineSegment(Vector(0.2, 15.5, 0), Vector(1, 15.5, 0)), False)
sketch4.addGeometry(Part.LineSegment(Vector(1, 15.5, 0), Vector(1, 16.5, 0)), False)
sketch4.addGeometry(Part.LineSegment(Vector(1, 16.5, 0), Vector(2, 16.5, 0)), False)
sketch4.addGeometry(Part.LineSegment(Vector(2, 16.5, 0), Vector(2, 17.3, 0)), False)
sketch4.addGeometry(Part.LineSegment(Vector(2, 17.3, 0), Vector(5.5, 17.3, 0)), False)
sketch4.addGeometry(Part.LineSegment(Vector(5.5, 17.3, 0), Vector(5.5, 16.5, 0)), False)
sketch4.addGeometry(Part.LineSegment(Vector(5.5, 16.5, 0), Vector(10.5, 16.5, 0)), False)
sketch4.addGeometry(Part.LineSegment(Vector(10.5, 16.5, 0), Vector(10.5, 17.3, 0)), False)
sketch4.addConstraint(Sketcher.Constraint("Coincident", 0, 2, 1, 1))
sketch4.addConstraint(Sketcher.Constraint("Coincident", 1, 2, 2, 1))
sketch4.addConstraint(Sketcher.Constraint("Coincident", 2, 2, 3, 1))
sketch4.addConstraint(Sketcher.Constraint("Coincident", 3, 2, 4, 1))
sketch4.addConstraint(Sketcher.Constraint("Coincident", 4, 2, 5, 1))
sketch4.addConstraint(Sketcher.Constraint("Coincident", 5, 2, 6, 1))
sketch4.addConstraint(Sketcher.Constraint("Coincident", 6, 2, 7, 1))
sketch4.addConstraint(Sketcher.Constraint("Coincident", 7, 2, 8, 1))
sketch4.addConstraint(Sketcher.Constraint("Coincident", 8, 2, 9, 1))
sketch4.addConstraint(Sketcher.Constraint("Coincident", 9, 2, 10, 1))
sketch4.addConstraint(Sketcher.Constraint("Coincident", 10, 2, 11, 1))
sketch4.addConstraint(Sketcher.Constraint("Coincident", 11, 2, 12, 1))
sketch4.addConstraint(Sketcher.Constraint("Coincident", 12, 2, 13, 1))
sketch4.addConstraint(Sketcher.Constraint("Coincident", 13, 2, 14, 1))
sketch4.addConstraint(Sketcher.Constraint("Coincident", 14, 2, 15, 1))
sketch4.addConstraint(Sketcher.Constraint("Coincident", 15, 2, 16, 1))
sketch4.addConstraint(Sketcher.Constraint("Coincident", 16, 2, 17, 1))
sketch4.addConstraint(Sketcher.Constraint("Coincident", 17, 2, 18, 1))
sketch4.addConstraint(Sketcher.Constraint("Coincident", 18, 2, 19, 1))
sketch4.addConstraint(Sketcher.Constraint("Coincident", 19, 2, 20, 1))
sketch4.addConstraint(Sketcher.Constraint("Coincident", 20, 2, 21, 1))
sketch4.addConstraint(Sketcher.Constraint("Coincident", 21, 2, 22, 1))
sketch4.addConstraint(Sketcher.Constraint("Coincident", 22, 2, 23, 1))
sketch4.addConstraint(Sketcher.Constraint("Coincident", 23, 2, 24, 1))
sketch4.addConstraint(Sketcher.Constraint("Coincident", 24, 2, 25, 1))
sketch4.addConstraint(Sketcher.Constraint("Coincident", 25, 2, 26, 1))
sketch4.addConstraint(Sketcher.Constraint("Coincident", 26, 2, 27, 1))
sketch4.addConstraint(Sketcher.Constraint("Coincident", 27, 2, 28, 1))
sketch4.addConstraint(Sketcher.Constraint("Coincident", 28, 2, 29, 1))
sketch4.addConstraint(Sketcher.Constraint("Coincident", 29, 2, 30, 1))
sketch4.addConstraint(Sketcher.Constraint("Coincident", 30, 2, 31, 1))
sketch4.addConstraint(Sketcher.Constraint("Coincident", 31, 2, 32, 1))
sketch4.addConstraint(Sketcher.Constraint("Coincident", 32, 2, 33, 1))
sketch4.addConstraint(Sketcher.Constraint("Coincident", 33, 2, 34, 1))
sketch4.addConstraint(Sketcher.Constraint("Coincident", 34, 2, 35, 1))
sketch4.addConstraint(Sketcher.Constraint("Coincident", 35, 2, 0, 1))
sketch4.addConstraint(Sketcher.Constraint("Horizontal", 0))
sketch4.addConstraint(Sketcher.Constraint("Vertical", 1))
sketch4.addConstraint(Sketcher.Constraint("Horizontal", 2))
sketch4.addConstraint(Sketcher.Constraint("Vertical", 3))
sketch4.addConstraint(Sketcher.Constraint("Horizontal", 4))
sketch4.addConstraint(Sketcher.Constraint("Vertical", 5))
sketch4.addConstraint(Sketcher.Constraint("Horizontal", 6))
sketch4.addConstraint(Sketcher.Constraint("Vertical", 7))
sketch4.addConstraint(Sketcher.Constraint("Horizontal", 8))
sketch4.addConstraint(Sketcher.Constraint("Vertical", 9))
sketch4.addConstraint(Sketcher.Constraint("Horizontal", 10))
sketch4.addConstraint(Sketcher.Constraint("Vertical", 11))
sketch4.addConstraint(Sketcher.Constraint("Horizontal", 12))
sketch4.addConstraint(Sketcher.Constraint("Vertical", 13))
sketch4.addConstraint(Sketcher.Constraint("Horizontal", 14))
sketch4.addConstraint(Sketcher.Constraint("Vertical", 15))
sketch4.addConstraint(Sketcher.Constraint("Horizontal", 16))
sketch4.addConstraint(Sketcher.Constraint("Vertical", 17))
sketch4.addConstraint(Sketcher.Constraint("Horizontal", 18))
sketch4.addConstraint(Sketcher.Constraint("Vertical", 19))
sketch4.addConstraint(Sketcher.Constraint("Horizontal", 20))
sketch4.addConstraint(Sketcher.Constraint("Vertical", 21))
sketch4.addConstraint(Sketcher.Constraint("Horizontal", 22))
sketch4.addConstraint(Sketcher.Constraint("Vertical", 23))
sketch4.addConstraint(Sketcher.Constraint("Horizontal", 24))
sketch4.addConstraint(Sketcher.Constraint("Vertical", 25))
sketch4.addConstraint(Sketcher.Constraint("Horizontal", 26))
sketch4.addConstraint(Sketcher.Constraint("Vertical", 27))
sketch4.addConstraint(Sketcher.Constraint("Horizontal", 28))
sketch4.addConstraint(Sketcher.Constraint("Vertical", 29))
sketch4.addConstraint(Sketcher.Constraint("Horizontal", 30))
sketch4.addConstraint(Sketcher.Constraint("Vertical", 31))
sketch4.addConstraint(Sketcher.Constraint("Horizontal", 32))
sketch4.addConstraint(Sketcher.Constraint("Vertical", 33))
sketch4.addConstraint(Sketcher.Constraint("Horizontal", 34))
sketch4.addConstraint(Sketcher.Constraint("Vertical", 35))
sketch4.addConstraint(Sketcher.Constraint("Horizontal", 12, 2, 15, 2))
sketch4.addConstraint(Sketcher.Constraint("Horizontal", 14, 2, 17, 2))
sketch4.addConstraint(Sketcher.Constraint("Horizontal", 16, 2, 19, 2))
sketch4.addConstraint(Sketcher.Constraint("Horizontal", 10, 2, 21, 2))
sketch4.addConstraint(Sketcher.Constraint("Horizontal", 8, 2, 23, 2))
sketch4.addConstraint(Sketcher.Constraint("Horizontal", 6, 2, 25, 2))
sketch4.addConstraint(Sketcher.Constraint("Horizontal", 4, 2, 27, 2))
sketch4.addConstraint(Sketcher.Constraint("Horizontal", 2, 2, 29, 2))
sketch4.addConstraint(Sketcher.Constraint("Horizontal", 0, 2, 31, 2))
sketch4.addConstraint(Sketcher.Constraint("Horizontal", 30, 2, 33, 2))
sketch4.addConstraint(Sketcher.Constraint("Vertical", 3, 2, 6, 2))
sketch4.addConstraint(Sketcher.Constraint("Vertical", 5, 2, 8, 2))
sketch4.addConstraint(Sketcher.Constraint("Vertical", 7, 2, 10, 2))
sketch4.addConstraint(Sketcher.Constraint("Vertical", 1, 2, 12, 2))
sketch4.addConstraint(Sketcher.Constraint("Vertical", 21, 2, 24, 2))
sketch4.addConstraint(Sketcher.Constraint("Vertical", 23, 2, 26, 2))
sketch4.addConstraint(Sketcher.Constraint("Vertical", 25, 2, 28, 2))
sketch4.addConstraint(Sketcher.Constraint("Vertical", 19, 2, 30, 2))
sketch4.addConstraint(Sketcher.Constraint("Vertical", 17, 2, 32, 2))
sketch4.addConstraint(Sketcher.Constraint("Vertical", 15, 2, 34, 2))
sketch4.addConstraint(Sketcher.Constraint("Equal", 14, 18))
sketch4.addConstraint(Sketcher.Constraint("Equal", 12, 20))
sketch4.addConstraint(Sketcher.Constraint("Equal", 10, 22))
sketch4.addConstraint(Sketcher.Constraint("Equal", 28, 1))
sketch4.addConstraint(Sketcher.Constraint("Equal", 30, 3))
sketch4.addConstraint(Sketcher.Constraint("Equal", 32, 5))
sketch4.addConstraint(Sketcher.Constraint("Equal", 34, 7))
sketch4.addConstraint(Sketcher.Constraint("Equal", 5, 9))
sketch4.addConstraint(Sketcher.Constraint("Equal", 3, 11))
sketch4.addConstraint(Sketcher.Constraint("Equal", 1, 13))
sketch4.addConstraint(Sketcher.Constraint("DistanceX", 2, 1, 2, 2, Q("1 mm")))
sketch4.addConstraint(Sketcher.Constraint("DistanceX", 16, 2, 16, 1, Q("5 mm")))
sketch4.addConstraint(Sketcher.Constraint("DistanceX", 0, 1, 0, 2, Q("3.5 mm")))
sketch4.addConstraint(Sketcher.Constraint("DistanceX", 4, 1, 4, 2, Q("0.800001 mm")))
sketch4.addConstraint(Sketcher.Constraint("DistanceX", -1, 1, 0, 2, Q("14 mm")))
sketch4.addConstraint(Sketcher.Constraint("DistanceY", -1, 1, 5, 2, Q("12 mm")))
pocket3 = body.newObject("PartDesign::Pocket", "Pocket002")
pocket3.Profile = sketch4
pocket3.Type = "ThroughAll"
pocket3.Reversed = True
body2 = doc.addObject("PartDesign::Body", "Body001")
doc.recompute()

body.Placement = App.Placement(Vector(2.38, -2.38, 19), App.Rotation(Vector(0, 0, 1), 0))
boolean = body2.newObject("PartDesign::Boolean", "Boolean")
boolean.Type = "Fuse"
boolean.addObjects([body])
body3 = doc.addObject("PartDesign::Body", "Body002")
doc.recompute()

body2.Placement = App.Placement(Vector(4.75, 4.76, 19), App.Rotation(Vector(0, 0, 1), 0))
boolean2 = body3.newObject("PartDesign::Boolean", "Boolean001")
boolean2.Type = "Fuse"
boolean2.addObjects([body2])
body4 = doc.addObject("PartDesign::Body", "Body003")
doc.recompute()

body3.Placement = App.Placement(Vector(-2.38, -2.38, 19), App.Rotation(Vector(0, 0, 1), 0))
boolean3 = body4.newObject("PartDesign::Boolean", "Boolean002")
boolean3.Type = "Fuse"
boolean3.addObjects([body3])
body5 = doc.addObject("PartDesign::Body", "Body004")
doc.recompute()

body4.Placement = App.Placement(Vector(-4.75, -2.38, 19), App.Rotation(Vector(0, 0, 1), 0))
boolean4 = body5.newObject("PartDesign::Boolean", "Boolean003")
boolean4.Type = "Fuse"
boolean4.addObjects([body4])
body6 = doc.addObject("PartDesign::Body", "Body005")
doc.recompute()

body5.Placement = App.Placement(Vector(-2.38, 2.38, 19), App.Rotation(Vector(0, 0, 1), 0))
boolean5 = body6.newObject("PartDesign::Boolean", "Boolean004")
boolean5.Type = "Fuse"
boolean5.addObjects([body5])

doc.recompute()
